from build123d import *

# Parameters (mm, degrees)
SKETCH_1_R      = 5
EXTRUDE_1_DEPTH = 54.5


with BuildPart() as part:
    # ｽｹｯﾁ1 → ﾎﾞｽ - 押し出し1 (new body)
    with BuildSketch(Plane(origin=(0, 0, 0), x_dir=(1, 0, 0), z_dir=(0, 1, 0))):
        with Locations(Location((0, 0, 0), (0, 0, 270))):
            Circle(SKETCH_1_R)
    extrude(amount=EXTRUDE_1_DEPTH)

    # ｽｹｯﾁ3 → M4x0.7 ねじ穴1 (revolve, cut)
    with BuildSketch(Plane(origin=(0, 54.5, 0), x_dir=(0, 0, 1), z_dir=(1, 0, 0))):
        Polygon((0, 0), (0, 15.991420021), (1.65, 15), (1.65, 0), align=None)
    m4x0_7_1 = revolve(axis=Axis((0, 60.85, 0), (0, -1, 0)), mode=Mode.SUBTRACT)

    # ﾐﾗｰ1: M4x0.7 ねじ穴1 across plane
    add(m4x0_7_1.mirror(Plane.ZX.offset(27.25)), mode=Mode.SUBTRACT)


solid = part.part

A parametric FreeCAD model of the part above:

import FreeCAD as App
import Part
import Sketcher
from FreeCAD import Vector
Q = App.Units.Quantity


def add_polygon(sketch, points):
    """Adds a closed chain of lines whose ends are joined by coincident constraints."""
    first, n = sketch.GeometryCount, len(points)
    for a, b in zip(points, points[1:] + points[:1]):
        sketch.addGeometry(Part.LineSegment(App.Vector(*a, 0), App.Vector(*b, 0)), False)
    for i in range(n):
        sketch.addConstraint(Sketcher.Constraint("Coincident", first + i, 2, first + (i + 1) % n, 1))

doc = App.newDocument("Part")
body = doc.addObject("PartDesign::Body", "Body")

# Sketch on XZ plane
sketch1 = doc.addObject("Sketcher::SketchObject", "Sketch")
body.addObject(sketch1)
sketch1.AttachmentSupport = (doc.XZ_Plane, [""])
sketch1.MapMode = "FlatFace"
sketch1.addGeometry(Part.Circle(Vector(0, 0, 0), Vector(0, 0, 1), 5), False)
sketch1.addConstraint([
    Sketcher.Constraint("Coincident", 0, 3, -1, 1),
    Sketcher.Constraint("Diameter", 0, Q("10 mm")),
])
pad1 = doc.addObject("PartDesign::Pad", "Pad")
body.addObject(pad1)
pad1.Profile = sketch1
pad1.Length = 54.5
pad1.Reversed = True

# Sketch on YZ plane
sketch2 = doc.addObject("Sketcher::SketchObject", "Sketch001")
body.addObject(sketch2)
sketch2.AttachmentSupport = (doc.YZ_Plane, [""])
sketch2.MapMode = "FlatFace"
add_polygon(sketch2, [(38.5, 0), (54.5, 0), (54.5, 1.6), (39.5, 1.6)])  # lines 0-3
sketch2.addConstraint([
    Sketcher.Constraint("Horizontal", 0),
    Sketcher.Constraint("Vertical", 1),
    Sketcher.Constraint("Horizontal", 2),
    Sketcher.Constraint("PointOnObject", 0, 2, -1),
    Sketcher.Constraint("DistanceX", 2, 2, 2, 1, Q("15 mm")),
    Sketcher.Constraint("Angle", 3, Q("-121 deg")),
    Sketcher.Constraint("DistanceY", 1, 1, 1, 2, Q("1.65 mm")),
    Sketcher.Constraint("DistanceX", -1, 1, 0, 2, Q("54.5 mm")),
])
groove = doc.addObject("PartDesign::Groove", "Groove")
body.addObject(groove)
groove.Profile = sketch2
groove.ReferenceAxis = (sketch2, ["H_Axis"])
groove.Angle = 360
doc.recompute()

datumplane = doc.addObject("PartDesign::Plane", "DatumPlane")
body.addObject(datumplane)
datumplane.AttachmentSupport = (doc.XZ_Plane, [""])
datumplane.MapMode = "FlatFace"
datumplane.AttachmentOffset = App.Placement(Vector(0, 0, -27.25), App.Rotation())
mirrored = doc.addObject("PartDesign::Mirrored", "Mirrored")
body.addObject(mirrored)
mirrored.Originals = [groove]
mirrored.MirrorPlane = (datumplane, [""])
body.Tip = mirrored

doc.recompute()
